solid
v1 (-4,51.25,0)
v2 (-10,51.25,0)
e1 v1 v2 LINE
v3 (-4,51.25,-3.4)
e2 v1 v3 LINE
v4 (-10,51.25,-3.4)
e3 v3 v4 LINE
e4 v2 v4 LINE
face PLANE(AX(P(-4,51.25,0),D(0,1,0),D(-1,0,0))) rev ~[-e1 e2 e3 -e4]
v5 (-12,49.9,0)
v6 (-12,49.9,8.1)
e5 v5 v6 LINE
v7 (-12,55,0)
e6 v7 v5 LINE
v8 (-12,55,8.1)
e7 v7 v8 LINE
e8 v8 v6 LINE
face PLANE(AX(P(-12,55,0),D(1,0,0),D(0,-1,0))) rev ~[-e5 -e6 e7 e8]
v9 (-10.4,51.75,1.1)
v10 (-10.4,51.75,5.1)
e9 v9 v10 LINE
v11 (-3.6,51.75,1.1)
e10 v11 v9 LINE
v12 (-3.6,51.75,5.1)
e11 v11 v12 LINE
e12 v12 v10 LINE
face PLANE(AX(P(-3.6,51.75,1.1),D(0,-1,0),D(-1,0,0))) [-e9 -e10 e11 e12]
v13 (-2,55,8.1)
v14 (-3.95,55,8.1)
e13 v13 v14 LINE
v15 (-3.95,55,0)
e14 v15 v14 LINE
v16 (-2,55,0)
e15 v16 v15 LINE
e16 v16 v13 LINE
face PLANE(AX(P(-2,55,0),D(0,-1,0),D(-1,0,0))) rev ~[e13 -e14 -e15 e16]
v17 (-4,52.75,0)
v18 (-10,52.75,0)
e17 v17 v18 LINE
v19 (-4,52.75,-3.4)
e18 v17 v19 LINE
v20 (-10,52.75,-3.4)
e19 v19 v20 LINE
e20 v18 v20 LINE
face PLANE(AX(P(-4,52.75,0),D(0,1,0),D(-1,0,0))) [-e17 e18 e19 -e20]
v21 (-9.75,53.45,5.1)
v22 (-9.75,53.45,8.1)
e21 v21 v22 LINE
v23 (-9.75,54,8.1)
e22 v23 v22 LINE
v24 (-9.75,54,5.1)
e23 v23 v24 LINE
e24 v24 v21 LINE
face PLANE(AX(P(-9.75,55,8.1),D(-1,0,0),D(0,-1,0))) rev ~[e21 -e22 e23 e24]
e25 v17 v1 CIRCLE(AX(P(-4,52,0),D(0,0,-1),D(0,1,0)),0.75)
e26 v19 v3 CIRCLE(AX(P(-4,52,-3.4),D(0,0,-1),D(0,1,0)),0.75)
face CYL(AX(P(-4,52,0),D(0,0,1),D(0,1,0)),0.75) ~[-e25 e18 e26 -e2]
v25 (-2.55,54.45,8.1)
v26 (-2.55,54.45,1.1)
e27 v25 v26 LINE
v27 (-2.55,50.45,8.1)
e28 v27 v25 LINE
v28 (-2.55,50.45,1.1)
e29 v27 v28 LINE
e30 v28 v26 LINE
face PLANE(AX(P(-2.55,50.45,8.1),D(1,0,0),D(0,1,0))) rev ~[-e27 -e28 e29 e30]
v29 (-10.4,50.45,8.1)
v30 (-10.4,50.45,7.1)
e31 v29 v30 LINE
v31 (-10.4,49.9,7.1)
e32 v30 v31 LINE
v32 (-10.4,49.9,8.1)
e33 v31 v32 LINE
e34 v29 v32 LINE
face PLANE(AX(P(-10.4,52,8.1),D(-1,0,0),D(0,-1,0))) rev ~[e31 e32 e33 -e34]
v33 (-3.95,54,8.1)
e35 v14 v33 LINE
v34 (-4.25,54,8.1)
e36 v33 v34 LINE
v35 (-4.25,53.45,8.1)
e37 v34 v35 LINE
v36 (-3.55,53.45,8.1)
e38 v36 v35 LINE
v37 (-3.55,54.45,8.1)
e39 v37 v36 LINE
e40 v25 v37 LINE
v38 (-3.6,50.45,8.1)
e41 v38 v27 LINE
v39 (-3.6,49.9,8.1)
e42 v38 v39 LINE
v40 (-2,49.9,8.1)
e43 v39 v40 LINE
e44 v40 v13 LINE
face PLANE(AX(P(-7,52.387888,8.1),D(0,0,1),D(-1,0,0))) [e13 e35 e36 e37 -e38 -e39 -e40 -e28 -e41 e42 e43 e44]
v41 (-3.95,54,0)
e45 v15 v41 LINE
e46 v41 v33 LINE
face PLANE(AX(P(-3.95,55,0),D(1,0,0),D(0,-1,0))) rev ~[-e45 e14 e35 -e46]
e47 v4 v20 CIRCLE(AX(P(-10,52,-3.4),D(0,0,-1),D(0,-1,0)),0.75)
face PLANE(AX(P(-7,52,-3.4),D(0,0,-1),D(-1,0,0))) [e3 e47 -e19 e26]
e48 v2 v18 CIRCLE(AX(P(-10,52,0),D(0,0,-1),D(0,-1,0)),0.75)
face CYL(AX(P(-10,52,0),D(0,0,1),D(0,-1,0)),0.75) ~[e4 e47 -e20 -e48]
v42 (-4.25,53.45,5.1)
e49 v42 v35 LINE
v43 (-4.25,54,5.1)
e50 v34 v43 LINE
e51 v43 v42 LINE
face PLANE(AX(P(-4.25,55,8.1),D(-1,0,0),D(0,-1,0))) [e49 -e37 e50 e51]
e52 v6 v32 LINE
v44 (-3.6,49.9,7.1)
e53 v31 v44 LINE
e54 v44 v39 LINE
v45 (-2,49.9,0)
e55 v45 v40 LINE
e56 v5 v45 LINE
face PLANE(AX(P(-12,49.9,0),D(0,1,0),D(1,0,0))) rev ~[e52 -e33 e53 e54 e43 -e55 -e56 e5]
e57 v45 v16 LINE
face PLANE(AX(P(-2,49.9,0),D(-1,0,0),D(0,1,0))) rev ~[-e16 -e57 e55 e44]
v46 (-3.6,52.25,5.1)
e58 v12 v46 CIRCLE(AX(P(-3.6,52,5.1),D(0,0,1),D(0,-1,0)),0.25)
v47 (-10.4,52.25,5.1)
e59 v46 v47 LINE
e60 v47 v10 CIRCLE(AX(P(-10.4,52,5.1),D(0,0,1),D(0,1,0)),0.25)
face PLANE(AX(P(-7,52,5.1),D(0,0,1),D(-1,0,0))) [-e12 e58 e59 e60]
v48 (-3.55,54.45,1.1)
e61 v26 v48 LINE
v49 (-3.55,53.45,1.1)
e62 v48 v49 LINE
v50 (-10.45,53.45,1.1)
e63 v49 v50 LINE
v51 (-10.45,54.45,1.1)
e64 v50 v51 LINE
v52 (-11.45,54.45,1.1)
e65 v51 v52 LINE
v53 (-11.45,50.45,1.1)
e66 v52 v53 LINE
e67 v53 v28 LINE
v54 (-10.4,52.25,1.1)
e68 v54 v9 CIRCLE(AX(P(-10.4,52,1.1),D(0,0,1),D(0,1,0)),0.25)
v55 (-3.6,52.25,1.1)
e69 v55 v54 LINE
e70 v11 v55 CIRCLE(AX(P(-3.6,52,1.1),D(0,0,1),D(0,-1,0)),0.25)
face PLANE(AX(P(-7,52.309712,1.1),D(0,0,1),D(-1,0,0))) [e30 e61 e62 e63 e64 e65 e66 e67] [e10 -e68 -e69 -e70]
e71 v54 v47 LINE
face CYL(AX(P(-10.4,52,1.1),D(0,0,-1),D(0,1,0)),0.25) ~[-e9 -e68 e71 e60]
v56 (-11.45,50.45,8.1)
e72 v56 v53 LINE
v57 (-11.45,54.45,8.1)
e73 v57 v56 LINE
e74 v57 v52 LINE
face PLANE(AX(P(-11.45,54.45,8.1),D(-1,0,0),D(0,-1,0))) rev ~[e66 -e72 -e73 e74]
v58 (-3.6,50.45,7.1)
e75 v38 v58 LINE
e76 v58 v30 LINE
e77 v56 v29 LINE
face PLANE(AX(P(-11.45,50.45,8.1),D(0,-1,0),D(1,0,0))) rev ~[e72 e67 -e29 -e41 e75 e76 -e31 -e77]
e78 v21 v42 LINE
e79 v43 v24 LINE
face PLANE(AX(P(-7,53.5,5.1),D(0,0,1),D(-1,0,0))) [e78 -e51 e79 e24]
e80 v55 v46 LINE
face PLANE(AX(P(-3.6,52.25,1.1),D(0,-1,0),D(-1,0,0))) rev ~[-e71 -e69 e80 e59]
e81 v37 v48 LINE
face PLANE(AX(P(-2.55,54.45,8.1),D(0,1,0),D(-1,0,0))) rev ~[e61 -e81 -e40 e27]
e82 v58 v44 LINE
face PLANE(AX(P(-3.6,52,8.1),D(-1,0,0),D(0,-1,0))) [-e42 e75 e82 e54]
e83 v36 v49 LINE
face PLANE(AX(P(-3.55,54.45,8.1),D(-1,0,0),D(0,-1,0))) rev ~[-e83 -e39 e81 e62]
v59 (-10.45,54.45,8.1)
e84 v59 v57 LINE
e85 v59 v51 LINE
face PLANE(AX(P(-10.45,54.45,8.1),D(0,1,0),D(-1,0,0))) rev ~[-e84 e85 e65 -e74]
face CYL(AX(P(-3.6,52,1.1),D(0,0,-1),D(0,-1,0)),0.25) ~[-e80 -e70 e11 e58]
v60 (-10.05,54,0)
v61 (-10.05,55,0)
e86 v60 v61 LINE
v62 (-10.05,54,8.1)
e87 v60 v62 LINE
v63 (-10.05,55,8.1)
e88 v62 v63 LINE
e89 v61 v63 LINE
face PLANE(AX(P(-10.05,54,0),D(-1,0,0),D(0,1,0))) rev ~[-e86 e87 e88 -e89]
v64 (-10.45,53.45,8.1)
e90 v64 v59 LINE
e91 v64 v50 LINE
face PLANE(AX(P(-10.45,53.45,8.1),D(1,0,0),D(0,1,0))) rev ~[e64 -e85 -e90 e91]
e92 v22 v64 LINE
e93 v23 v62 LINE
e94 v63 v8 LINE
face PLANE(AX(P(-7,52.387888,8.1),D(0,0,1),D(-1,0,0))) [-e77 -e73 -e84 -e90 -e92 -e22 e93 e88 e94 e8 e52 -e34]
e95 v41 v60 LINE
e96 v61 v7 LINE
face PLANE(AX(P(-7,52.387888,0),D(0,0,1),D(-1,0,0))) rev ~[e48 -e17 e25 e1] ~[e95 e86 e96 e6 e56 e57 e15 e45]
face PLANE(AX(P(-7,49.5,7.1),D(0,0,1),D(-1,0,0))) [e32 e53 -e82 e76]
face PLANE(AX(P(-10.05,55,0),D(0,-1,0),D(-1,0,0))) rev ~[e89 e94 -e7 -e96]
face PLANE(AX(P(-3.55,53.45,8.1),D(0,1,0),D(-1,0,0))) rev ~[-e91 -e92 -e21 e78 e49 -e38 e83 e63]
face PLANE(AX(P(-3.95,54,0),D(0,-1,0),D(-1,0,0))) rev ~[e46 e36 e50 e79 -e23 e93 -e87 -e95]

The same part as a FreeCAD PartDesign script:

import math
import FreeCAD as App
import Part
import Sketcher

V = App.Vector

doc = App.newDocument("Part")
body = doc.addObject("PartDesign::Body", "Body")

sketch1 = doc.addObject("Sketcher::SketchObject", "Sketch")
body.addObject(sketch1)
sketch1.AttachmentSupport = (doc.XY_Plane, [""])
sketch1.MapMode = "FlatFace"
sketch1.addGeometry(Part.LineSegment(V(-5, 0, 0), V(-3, 0, 0)), False)
sketch1.addGeometry(Part.LineSegment(V(-3, 0, 0), V(-3, 1, 0)), False)
sketch1.addGeometry(Part.LineSegment(V(-3, 1, 0), V(3, 1, 0)), False)
sketch1.addGeometry(Part.LineSegment(V(3, 1, 0), V(3, 0, 0)), False)
sketch1.addGeometry(Part.LineSegment(V(3, 0, 0), V(5, 0, 0)), False)
sketch1.addGeometry(Part.LineSegment(V(5, 0, 0), V(5, 5.1, 0)), False)
sketch1.addGeometry(Part.LineSegment(V(5, 5.1, 0), V(-5, 5.1, 0)), False)
sketch1.addGeometry(Part.LineSegment(V(-5, 5.1, 0), V(-5, 0, 0)), False)
sketch1.addConstraint(Sketcher.Constraint("Coincident", 0, 2, 1, 1))
sketch1.addConstraint(Sketcher.Constraint("Coincident", 1, 2, 2, 1))
sketch1.addConstraint(Sketcher.Constraint("Coincident", 2, 2, 3, 1))
sketch1.addConstraint(Sketcher.Constraint("Coincident", 3, 2, 4, 1))
sketch1.addConstraint(Sketcher.Constraint("Coincident", 4, 2, 5, 1))
sketch1.addConstraint(Sketcher.Constraint("Coincident", 5, 2, 6, 1))
sketch1.addConstraint(Sketcher.Constraint("Coincident", 6, 2, 7, 1))
sketch1.addConstraint(Sketcher.Constraint("Coincident", 7, 2, 0, 1))
sketch1.addConstraint(Sketcher.Constraint("Horizontal", 0))
sketch1.addConstraint(Sketcher.Constraint("Vertical", 1))
sketch1.addConstraint(Sketcher.Constraint("Horizontal", 2))
sketch1.addConstraint(Sketcher.Constraint("Vertical", 3))
sketch1.addConstraint(Sketcher.Constraint("Horizontal", 4))
sketch1.addConstraint(Sketcher.Constraint("Vertical", 5))
sketch1.addConstraint(Sketcher.Constraint("Horizontal", 6))
sketch1.addConstraint(Sketcher.Constraint("Vertical", 7))
sketch1.addConstraint(Sketcher.Constraint("Symmetric", 0, 2, 3, 2, -1, 1))
sketch1.addConstraint(Sketcher.Constraint("Symmetric", 4, 2, 7, 2, -2))
sketch1.addConstraint(Sketcher.Constraint("DistanceX", 6, 2, 6, 1, 10.0))
sketch1.addConstraint(Sketcher.Constraint("DistanceY", 1, 1, 1, 2, 1.0))
sketch1.addConstraint(Sketcher.Constraint("DistanceX", 2, 1, 2, 2, 6.1))
sketch1.addConstraint(Sketcher.Constraint("DistanceY", 5, 1, 5, 2, 5.1))
pad1 = doc.addObject("PartDesign::Pad", "Pad")
body.addObject(pad1)
pad1.Profile = sketch1
pad1.Length = 8.1

sketch2 = doc.addObject("Sketcher::SketchObject", "Sketch001")
body.addObject(sketch2)
sketch2.AttachmentSupport = (doc.XY_Plane, [""])
sketch2.MapMode = "FlatFace"
sketch2.AttachmentOffset = App.Placement(V(0, 0, 8.1), App.Rotation())
sketch2.addGeometry(Part.LineSegment(V(-4.5, 0.6, 0), V(-3.5, 0.6, 0)), False)
sketch2.addGeometry(Part.LineSegment(V(-3.5, 0.6, 0), V(-3.5, 1.6, 0)), False)
sketch2.addGeometry(Part.LineSegment(V(-3.5, 1.6, 0), V(3.5, 1.6, 0)), False)
sketch2.addGeometry(Part.LineSegment(V(3.5, 1.6, 0), V(3.5, 0.6, 0)), False)
sketch2.addGeometry(Part.LineSegment(V(3.5, 0.6, 0), V(4.5, 0.6, 0)), False)
sketch2.addGeometry(Part.LineSegment(V(4.5, 0.6, 0), V(4.5, 4.5, 0)), False)
sketch2.addGeometry(Part.LineSegment(V(4.5, 4.5, 0), V(-4.5, 4.5, 0)), False)
sketch2.addGeometry(Part.LineSegment(V(-4.5, 4.5, 0), V(-4.5, 0.6, 0)), False)
sketch2.addConstraint(Sketcher.Constraint("Coincident", 0, 2, 1, 1))
sketch2.addConstraint(Sketcher.Constraint("Coincident", 1, 2, 2, 1))
sketch2.addConstraint(Sketcher.Constraint("Coincident", 2, 2, 3, 1))
sketch2.addConstraint(Sketcher.Constraint("Coincident", 3, 2, 4, 1))
sketch2.addConstraint(Sketcher.Constraint("Coincident", 4, 2, 5, 1))
sketch2.addConstraint(Sketcher.Constraint("Coincident", 5, 2, 6, 1))
sketch2.addConstraint(Sketcher.Constraint("Coincident", 6, 2, 7, 1))
sketch2.addConstraint(Sketcher.Constraint("Coincident", 7, 2, 0, 1))
sketch2.addConstraint(Sketcher.Constraint("Horizontal", 0))
sketch2.addConstraint(Sketcher.Constraint("Vertical", 1))
sketch2.addConstraint(Sketcher.Constraint("Horizontal", 2))
sketch2.addConstraint(Sketcher.Constraint("Vertical", 3))
sketch2.addConstraint(Sketcher.Constraint("Horizontal", 4))
sketch2.addConstraint(Sketcher.Constraint("Vertical", 5))
sketch2.addConstraint(Sketcher.Constraint("Horizontal", 6))
sketch2.addConstraint(Sketcher.Constraint("Vertical", 7))
sketch2.addConstraint(Sketcher.Constraint("Symmetric", 0, 2, 3, 2, -2))
sketch2.addConstraint(Sketcher.Constraint("Equal", 0, 4))
sketch2.addConstraint(Sketcher.Constraint("Equal", 4, 1))
sketch2.addConstraint(Sketcher.Constraint("DistanceX", 0, 1, 0, 2, 1.0))
sketch2.addConstraint(Sketcher.Constraint("DistanceY", 5, 1, 5, 2, 4.0))
sketch2.addConstraint(Sketcher.Constraint("DistanceX", 2, 1, 2, 2, 6.9))
sketch2.addConstraint(Sketcher.Constraint("DistanceY", -1, 1, 0, 2, 0.55))
pocket1 = doc.addObject("PartDesign::Pocket", "Pocket")
body.addObject(pocket1)
pocket1.Profile = sketch2
pocket1.Length = 7

sketch3 = doc.addObject("Sketcher::SketchObject", "Sketch002")
body.addObject(sketch3)
sketch3.AttachmentSupport = (doc.XY_Plane, [""])
sketch3.MapMode = "FlatFace"
sketch3.AttachmentOffset = App.Placement(V(0, 0, 8.1), App.Rotation())
sketch3.addGeometry(Part.LineSegment(V(-3, 8, 0), V(-3, 3, 0)), False)
sketch3.addGeometry(Part.LineSegment(V(-3, 3, 0), V(3, 3, 0)), False)
sketch3.addGeometry(Part.LineSegment(V(3, 3, 0), V(3, 8, 0)), False)
sketch3.addGeometry(Part.LineSegment(V(3, 8, 0), V(-3, 8, 0)), False)
sketch3.addConstraint(Sketcher.Constraint("Coincident", 0, 2, 1, 1))
sketch3.addConstraint(Sketcher.Constraint("Coincident", 1, 2, 2, 1))
sketch3.addConstraint(Sketcher.Constraint("Coincident", 2, 2, 3, 1))
sketch3.addConstraint(Sketcher.Constraint("Coincident", 3, 2, 0, 1))
sketch3.addConstraint(Sketcher.Constraint("Vertical", 0))
sketch3.addConstraint(Sketcher.Constraint("Horizontal", 1))
sketch3.addConstraint(Sketcher.Constraint("Vertical", 2))
sketch3.addConstraint(Sketcher.Constraint("Horizontal", 3))
sketch3.addConstraint(Sketcher.Constraint("DistanceY", 0, 2, 0, 1, 5.0))
sketch3.addConstraint(Sketcher.Constraint("DistanceX", 1, 1, 1, 2, 6.8))
sketch3.addConstraint(Sketcher.Constraint("DistanceY", -1, 1, 0, 2, 3.0))
sketch3.addConstraint(Sketcher.Constraint("DistanceX", 0, 2, -1, 1, 3.4))
pocket2 = doc.addObject("PartDesign::Pocket", "Pocket001")
body.addObject(pocket2)
pocket2.Profile = sketch3
pocket2.Length = 1

sketch4 = doc.addObject("Sketcher::SketchObject", "Sketch003")
body.addObject(sketch4)
sketch4.AttachmentSupport = (doc.XY_Plane, [""])
sketch4.MapMode = "FlatFace"
sketch4.AttachmentOffset = App.Placement(V(0, 0, 8.1), App.Rotation())
sketch4.addGeometry(Part.LineSegment(V(-2.8, 3, 0), V(-2.8, 0, 0)), False)
sketch4.addGeometry(Part.LineSegment(V(-2.8, 0, 0), V(2.8, 0, 0)), False)
sketch4.addGeometry(Part.LineSegment(V(2.8, 0, 0), V(2.8, 3, 0)), False)
sketch4.addGeometry(Part.LineSegment(V(2.8, 3, 0), V(-2.8, 3, 0)), False)
sketch4.addConstraint(Sketcher.Constraint("Coincident", 0, 2, 1, 1))
sketch4.addConstraint(Sketcher.Constraint("Coincident", 1, 2, 2, 1))
sketch4.addConstraint(Sketcher.Constraint("Coincident", 2, 2, 3, 1))
sketch4.addConstraint(Sketcher.Constraint("Coincident", 3, 2, 0, 1))
sketch4.addConstraint(Sketcher.Constraint("Vertical", 0))
sketch4.addConstraint(Sketcher.Constraint("Horizontal", 1))
sketch4.addConstraint(Sketcher.Constraint("Vertical", 2))
sketch4.addConstraint(Sketcher.Constraint("Horizontal", 3))
sketch4.addConstraint(Sketcher.Constraint("Symmetric", 0, 2, 1, 2, -1, 1))
sketch4.addConstraint(Sketcher.Constraint("DistanceY", 0, 2, 0, 1, 3.0))
sketch4.addConstraint(Sketcher.Constraint("DistanceX", 1, 1, 1, 2, 5.5))
pocket3 = doc.addObject("PartDesign::Pocket", "Pocket002")
body.addObject(pocket3)
pocket3.Profile = sketch4
pocket3.Length = 3

sketch5 = doc.addObject("Sketcher::SketchObject", "Sketch004")
body.addObject(sketch5)
sketch5.AttachmentSupport = (doc.XY_Plane, [""])
sketch5.MapMode = "FlatFace"
sketch5.AttachmentOffset = App.Placement(V(0, 0, 1.1), App.Rotation())
sketch5.addGeometry(Part.ArcOfCircle(Part.Circle(V(-3.4, 3, 0), V(0, 0, 1), 0.25), math.radians(90), math.radians(270)), False)
sketch5.addGeometry(Part.LineSegment(V(-3.4, 2.75, 0), V(3.4, 2.75, 0)), False)
sketch5.addGeometry(Part.ArcOfCircle(Part.Circle(V(3.4, 3, 0), V(0, 0, 1), 0.25), math.radians(-90), math.radians(90)), False)
sketch5.addGeometry(Part.LineSegment(V(3.4, 3.25, 0), V(-3.4, 3.25, 0)), False)
sketch5.addConstraint(Sketcher.Constraint("Tangent", 0, 2, 1, 1))
sketch5.addConstraint(Sketcher.Constraint("Tangent", 1, 2, 2, 1))
sketch5.addConstraint(Sketcher.Constraint("Tangent", 2, 2, 3, 1))
sketch5.addConstraint(Sketcher.Constraint("Tangent", 3, 2, 0, 1))
sketch5.addConstraint(Sketcher.Constraint("Horizontal", 1))
sketch5.addConstraint(Sketcher.Constraint("Horizontal", 3))
sketch5.addConstraint(Sketcher.Constraint("Radius", 0, 0.25))
sketch5.addConstraint(Sketcher.Constraint("DistanceX", 1, 1, 1, 2, 6.8))
sketch5.addConstraint(Sketcher.Constraint("DistanceY", -1, 1, 0, 3, 3.0))
sketch5.addConstraint(Sketcher.Constraint("DistanceX", 0, 3, -1, 1, 3.4))
pad2 = doc.addObject("PartDesign::Pad", "Pad001")
body.addObject(pad2)
pad2.Profile = sketch5
pad2.Length = 4

sketch6 = doc.addObject("Sketcher::SketchObject", "Sketch005")
body.addObject(sketch6)
sketch6.AttachmentSupport = (doc.XY_Plane, [""])
sketch6.MapMode = "FlatFace"
sketch6.addGeometry(Part.ArcOfCircle(Part.Circle(V(-3, 3, 0), V(0, 0, 1), 0.8), math.radians(90), math.radians(270)), False)
sketch6.addGeometry(Part.LineSegment(V(-3, 3.8, 0), V(3, 3.8, 0)), False)
sketch6.addGeometry(Part.ArcOfCircle(Part.Circle(V(3, 3, 0), V(0, 0, 1), 0.8), math.radians(-90), math.radians(90)), False)
sketch6.addGeometry(Part.LineSegment(V(3, 2.2, 0), V(-3, 2.2, 0)), False)
sketch6.addConstraint(Sketcher.Constraint("Tangent", 0, 1, 1, 1))
sketch6.addConstraint(Sketcher.Constraint("Tangent", 1, 2, 2, 2))
sketch6.addConstraint(Sketcher.Constraint("Tangent", 2, 1, 3, 1))
sketch6.addConstraint(Sketcher.Constraint("Tangent", 3, 2, 0, 2))
sketch6.addConstraint(Sketcher.Constraint("Horizontal", 1))
sketch6.addConstraint(Sketcher.Constraint("Horizontal", 3))
sketch6.addConstraint(Sketcher.Constraint("DistanceX", 1, 1, 1, 2, 6.0))
sketch6.addConstraint(Sketcher.Constraint("Radius", 0, 0.75))
sketch6.addConstraint(Sketcher.Constraint("DistanceX", 0, 3, -1, 1, 3.0))
sketch6.addConstraint(Sketcher.Constraint("DistanceY", -1, 1, 0, 3, 3.0))
pad3 = doc.addObject("PartDesign::Pad", "Pad002")
body.addObject(pad3)
pad3.Profile = sketch6
pad3.Length = 3.4
pad3.Reversed = True
body2 = doc.addObject("PartDesign::Body", "Body001")
doc.recompute()

body.Placement = App.Placement(V(-7, 29, 0), App.Rotation(V(0, 0, 1), 180))
boolean = doc.addObject("PartDesign::Boolean", "Boolean")
body2.addObject(boolean)
boolean.Type = "Fuse"
boolean.addObjects([body])
body3 = doc.addObject("PartDesign::Body", "Body002")
doc.recompute()

body2.Placement = App.Placement(V(0, 26, 0), App.Rotation(V(0, 0, 1), 0))
boolean2 = doc.addObject("PartDesign::Boolean", "Boolean001")
body3.addObject(boolean2)
boolean2.Type = "Fuse"
boolean2.addObjects([body2])

doc.recompute()
